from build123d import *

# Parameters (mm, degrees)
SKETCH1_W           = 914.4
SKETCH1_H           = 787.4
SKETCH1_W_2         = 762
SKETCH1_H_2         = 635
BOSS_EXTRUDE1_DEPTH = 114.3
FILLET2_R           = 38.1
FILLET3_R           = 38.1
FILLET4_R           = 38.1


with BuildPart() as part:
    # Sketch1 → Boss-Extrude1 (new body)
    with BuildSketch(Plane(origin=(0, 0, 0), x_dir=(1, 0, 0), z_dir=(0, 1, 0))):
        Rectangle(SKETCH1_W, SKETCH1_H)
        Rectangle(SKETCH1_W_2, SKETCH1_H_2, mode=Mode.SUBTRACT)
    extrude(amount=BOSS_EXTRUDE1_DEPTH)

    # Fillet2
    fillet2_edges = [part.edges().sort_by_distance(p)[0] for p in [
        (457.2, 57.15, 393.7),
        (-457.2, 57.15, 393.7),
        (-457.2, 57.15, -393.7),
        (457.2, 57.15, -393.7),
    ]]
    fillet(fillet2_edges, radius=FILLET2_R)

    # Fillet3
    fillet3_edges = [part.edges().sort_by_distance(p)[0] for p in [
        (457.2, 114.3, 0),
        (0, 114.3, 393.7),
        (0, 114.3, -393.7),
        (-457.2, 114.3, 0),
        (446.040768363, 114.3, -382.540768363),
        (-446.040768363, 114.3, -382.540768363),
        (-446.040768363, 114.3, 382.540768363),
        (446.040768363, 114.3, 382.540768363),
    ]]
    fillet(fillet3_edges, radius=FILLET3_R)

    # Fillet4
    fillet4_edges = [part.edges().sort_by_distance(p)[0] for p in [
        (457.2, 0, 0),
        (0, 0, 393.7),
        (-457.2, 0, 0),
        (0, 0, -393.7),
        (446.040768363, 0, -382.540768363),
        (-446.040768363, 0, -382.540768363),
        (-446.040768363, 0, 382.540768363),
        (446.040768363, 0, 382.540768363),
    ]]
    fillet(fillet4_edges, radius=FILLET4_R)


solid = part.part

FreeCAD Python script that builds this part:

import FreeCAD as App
import Part
import Sketcher

V = App.Vector
Q = App.Units.Quantity


def edges_at(feature, points):
    """Names of the edges that pass closest to the given points."""
    edges = feature.Shape.Edges
    near = lambda p: min(range(len(edges)), key=lambda i: edges[i].distToShape(Part.Vertex(*p))[0])
    return sorted({f"Edge{near(p) + 1}" for p in points})


def add_polygon(sketch, points):
    """Adds a closed chain of lines whose ends are joined by coincident constraints."""
    first, n = sketch.GeometryCount, len(points)
    for a, b in zip(points, points[1:] + points[:1]):
        sketch.addGeometry(Part.LineSegment(App.Vector(*a, 0), App.Vector(*b, 0)), False)
    for i in range(n):
        sketch.addConstraint(Sketcher.Constraint("Coincident", first + i, 2, first + (i + 1) % n, 1))

doc = App.newDocument("Part")
body = doc.addObject("PartDesign::Body", "Body")

sketch1 = body.newObject("Sketcher::SketchObject", "Sketch")
sketch1.AttachmentSupport = (doc.getObject("XZ_Plane"), [""])
sketch1.MapMode = "FlatFace"
add_polygon(sketch1, [(-457.2, -393.7), (-457.2, 393.7), (457.2, 393.7), (457.2, -393.7)])
add_polygon(sketch1, [(381, 317.5), (-381, 317.5), (-381, -317.5), (381, -317.5)])
sketch1.addConstraint([
    Sketcher.Constraint("Vertical", 0),
    Sketcher.Constraint("Horizontal", 1),
    Sketcher.Constraint("Vertical", 2),
    Sketcher.Constraint("Horizontal", 3),
    Sketcher.Constraint("Horizontal", 4),
    Sketcher.Constraint("Vertical", 5),
    Sketcher.Constraint("Horizontal", 6),
    Sketcher.Constraint("Vertical", 7),
    Sketcher.Constraint("Symmetric", 0, 2, 2, 2, -1, 1),
    Sketcher.Constraint("Symmetric", 4, 2, 6, 2, -1, 1),
    Sketcher.Constraint("DistanceX", 1, 1, 1, 2, Q("36 in")),
    Sketcher.Constraint("DistanceX", 4, 2, 4, 1, Q("30 in")),
    Sketcher.Constraint("DistanceY", 0, 1, 0, 2, Q("31 in")),
    Sketcher.Constraint("DistanceY", 5, 2, 5, 1, Q("25 in")),
])
pad1 = body.newObject("PartDesign::Pad", "Pad")
pad1.Profile = sketch1
pad1.Length = Q("4.5 in")
pad1.Reversed = True
doc.recompute()

fillet = body.newObject("PartDesign::Fillet", "Fillet")
fillet.Base = (pad1, edges_at(pad1, [
    (457.2, 57.15, 393.7),
    (-457.2, 57.15, 393.7),
    (-457.2, 57.15, -393.7),
    (457.2, 57.15, -393.7),
]))
fillet.Radius = Q("1.5 in")
doc.recompute()

fillet2 = body.newObject("PartDesign::Fillet", "Fillet001")
fillet2.Base = (fillet, edges_at(fillet, [
    (457.2, 114.3, 0),
    (0, 114.3, 393.7),
    (0, 114.3, -393.7),
    (-457.2, 114.3, 0),
    (446.041, 114.3, -382.541),
    (-446.041, 114.3, -382.541),
    (-446.041, 114.3, 382.541),
    (446.041, 114.3, 382.541),
]))
fillet2.Radius = Q("1.5 in")
doc.recompute()

fillet3 = body.newObject("PartDesign::Fillet", "Fillet002")
fillet3.Base = (fillet2, edges_at(fillet2, [
    (457.2, 0, 0),
    (0, 0, 393.7),
    (-457.2, 0, 0),
    (0, 0, -393.7),
    (446.041, 0, -382.541),
    (-446.041, 0, -382.541),
    (-446.041, 0, 382.541),
    (446.041, 0, 382.541),
]))
fillet3.Radius = Q("1.5 in")

doc.recompute()
